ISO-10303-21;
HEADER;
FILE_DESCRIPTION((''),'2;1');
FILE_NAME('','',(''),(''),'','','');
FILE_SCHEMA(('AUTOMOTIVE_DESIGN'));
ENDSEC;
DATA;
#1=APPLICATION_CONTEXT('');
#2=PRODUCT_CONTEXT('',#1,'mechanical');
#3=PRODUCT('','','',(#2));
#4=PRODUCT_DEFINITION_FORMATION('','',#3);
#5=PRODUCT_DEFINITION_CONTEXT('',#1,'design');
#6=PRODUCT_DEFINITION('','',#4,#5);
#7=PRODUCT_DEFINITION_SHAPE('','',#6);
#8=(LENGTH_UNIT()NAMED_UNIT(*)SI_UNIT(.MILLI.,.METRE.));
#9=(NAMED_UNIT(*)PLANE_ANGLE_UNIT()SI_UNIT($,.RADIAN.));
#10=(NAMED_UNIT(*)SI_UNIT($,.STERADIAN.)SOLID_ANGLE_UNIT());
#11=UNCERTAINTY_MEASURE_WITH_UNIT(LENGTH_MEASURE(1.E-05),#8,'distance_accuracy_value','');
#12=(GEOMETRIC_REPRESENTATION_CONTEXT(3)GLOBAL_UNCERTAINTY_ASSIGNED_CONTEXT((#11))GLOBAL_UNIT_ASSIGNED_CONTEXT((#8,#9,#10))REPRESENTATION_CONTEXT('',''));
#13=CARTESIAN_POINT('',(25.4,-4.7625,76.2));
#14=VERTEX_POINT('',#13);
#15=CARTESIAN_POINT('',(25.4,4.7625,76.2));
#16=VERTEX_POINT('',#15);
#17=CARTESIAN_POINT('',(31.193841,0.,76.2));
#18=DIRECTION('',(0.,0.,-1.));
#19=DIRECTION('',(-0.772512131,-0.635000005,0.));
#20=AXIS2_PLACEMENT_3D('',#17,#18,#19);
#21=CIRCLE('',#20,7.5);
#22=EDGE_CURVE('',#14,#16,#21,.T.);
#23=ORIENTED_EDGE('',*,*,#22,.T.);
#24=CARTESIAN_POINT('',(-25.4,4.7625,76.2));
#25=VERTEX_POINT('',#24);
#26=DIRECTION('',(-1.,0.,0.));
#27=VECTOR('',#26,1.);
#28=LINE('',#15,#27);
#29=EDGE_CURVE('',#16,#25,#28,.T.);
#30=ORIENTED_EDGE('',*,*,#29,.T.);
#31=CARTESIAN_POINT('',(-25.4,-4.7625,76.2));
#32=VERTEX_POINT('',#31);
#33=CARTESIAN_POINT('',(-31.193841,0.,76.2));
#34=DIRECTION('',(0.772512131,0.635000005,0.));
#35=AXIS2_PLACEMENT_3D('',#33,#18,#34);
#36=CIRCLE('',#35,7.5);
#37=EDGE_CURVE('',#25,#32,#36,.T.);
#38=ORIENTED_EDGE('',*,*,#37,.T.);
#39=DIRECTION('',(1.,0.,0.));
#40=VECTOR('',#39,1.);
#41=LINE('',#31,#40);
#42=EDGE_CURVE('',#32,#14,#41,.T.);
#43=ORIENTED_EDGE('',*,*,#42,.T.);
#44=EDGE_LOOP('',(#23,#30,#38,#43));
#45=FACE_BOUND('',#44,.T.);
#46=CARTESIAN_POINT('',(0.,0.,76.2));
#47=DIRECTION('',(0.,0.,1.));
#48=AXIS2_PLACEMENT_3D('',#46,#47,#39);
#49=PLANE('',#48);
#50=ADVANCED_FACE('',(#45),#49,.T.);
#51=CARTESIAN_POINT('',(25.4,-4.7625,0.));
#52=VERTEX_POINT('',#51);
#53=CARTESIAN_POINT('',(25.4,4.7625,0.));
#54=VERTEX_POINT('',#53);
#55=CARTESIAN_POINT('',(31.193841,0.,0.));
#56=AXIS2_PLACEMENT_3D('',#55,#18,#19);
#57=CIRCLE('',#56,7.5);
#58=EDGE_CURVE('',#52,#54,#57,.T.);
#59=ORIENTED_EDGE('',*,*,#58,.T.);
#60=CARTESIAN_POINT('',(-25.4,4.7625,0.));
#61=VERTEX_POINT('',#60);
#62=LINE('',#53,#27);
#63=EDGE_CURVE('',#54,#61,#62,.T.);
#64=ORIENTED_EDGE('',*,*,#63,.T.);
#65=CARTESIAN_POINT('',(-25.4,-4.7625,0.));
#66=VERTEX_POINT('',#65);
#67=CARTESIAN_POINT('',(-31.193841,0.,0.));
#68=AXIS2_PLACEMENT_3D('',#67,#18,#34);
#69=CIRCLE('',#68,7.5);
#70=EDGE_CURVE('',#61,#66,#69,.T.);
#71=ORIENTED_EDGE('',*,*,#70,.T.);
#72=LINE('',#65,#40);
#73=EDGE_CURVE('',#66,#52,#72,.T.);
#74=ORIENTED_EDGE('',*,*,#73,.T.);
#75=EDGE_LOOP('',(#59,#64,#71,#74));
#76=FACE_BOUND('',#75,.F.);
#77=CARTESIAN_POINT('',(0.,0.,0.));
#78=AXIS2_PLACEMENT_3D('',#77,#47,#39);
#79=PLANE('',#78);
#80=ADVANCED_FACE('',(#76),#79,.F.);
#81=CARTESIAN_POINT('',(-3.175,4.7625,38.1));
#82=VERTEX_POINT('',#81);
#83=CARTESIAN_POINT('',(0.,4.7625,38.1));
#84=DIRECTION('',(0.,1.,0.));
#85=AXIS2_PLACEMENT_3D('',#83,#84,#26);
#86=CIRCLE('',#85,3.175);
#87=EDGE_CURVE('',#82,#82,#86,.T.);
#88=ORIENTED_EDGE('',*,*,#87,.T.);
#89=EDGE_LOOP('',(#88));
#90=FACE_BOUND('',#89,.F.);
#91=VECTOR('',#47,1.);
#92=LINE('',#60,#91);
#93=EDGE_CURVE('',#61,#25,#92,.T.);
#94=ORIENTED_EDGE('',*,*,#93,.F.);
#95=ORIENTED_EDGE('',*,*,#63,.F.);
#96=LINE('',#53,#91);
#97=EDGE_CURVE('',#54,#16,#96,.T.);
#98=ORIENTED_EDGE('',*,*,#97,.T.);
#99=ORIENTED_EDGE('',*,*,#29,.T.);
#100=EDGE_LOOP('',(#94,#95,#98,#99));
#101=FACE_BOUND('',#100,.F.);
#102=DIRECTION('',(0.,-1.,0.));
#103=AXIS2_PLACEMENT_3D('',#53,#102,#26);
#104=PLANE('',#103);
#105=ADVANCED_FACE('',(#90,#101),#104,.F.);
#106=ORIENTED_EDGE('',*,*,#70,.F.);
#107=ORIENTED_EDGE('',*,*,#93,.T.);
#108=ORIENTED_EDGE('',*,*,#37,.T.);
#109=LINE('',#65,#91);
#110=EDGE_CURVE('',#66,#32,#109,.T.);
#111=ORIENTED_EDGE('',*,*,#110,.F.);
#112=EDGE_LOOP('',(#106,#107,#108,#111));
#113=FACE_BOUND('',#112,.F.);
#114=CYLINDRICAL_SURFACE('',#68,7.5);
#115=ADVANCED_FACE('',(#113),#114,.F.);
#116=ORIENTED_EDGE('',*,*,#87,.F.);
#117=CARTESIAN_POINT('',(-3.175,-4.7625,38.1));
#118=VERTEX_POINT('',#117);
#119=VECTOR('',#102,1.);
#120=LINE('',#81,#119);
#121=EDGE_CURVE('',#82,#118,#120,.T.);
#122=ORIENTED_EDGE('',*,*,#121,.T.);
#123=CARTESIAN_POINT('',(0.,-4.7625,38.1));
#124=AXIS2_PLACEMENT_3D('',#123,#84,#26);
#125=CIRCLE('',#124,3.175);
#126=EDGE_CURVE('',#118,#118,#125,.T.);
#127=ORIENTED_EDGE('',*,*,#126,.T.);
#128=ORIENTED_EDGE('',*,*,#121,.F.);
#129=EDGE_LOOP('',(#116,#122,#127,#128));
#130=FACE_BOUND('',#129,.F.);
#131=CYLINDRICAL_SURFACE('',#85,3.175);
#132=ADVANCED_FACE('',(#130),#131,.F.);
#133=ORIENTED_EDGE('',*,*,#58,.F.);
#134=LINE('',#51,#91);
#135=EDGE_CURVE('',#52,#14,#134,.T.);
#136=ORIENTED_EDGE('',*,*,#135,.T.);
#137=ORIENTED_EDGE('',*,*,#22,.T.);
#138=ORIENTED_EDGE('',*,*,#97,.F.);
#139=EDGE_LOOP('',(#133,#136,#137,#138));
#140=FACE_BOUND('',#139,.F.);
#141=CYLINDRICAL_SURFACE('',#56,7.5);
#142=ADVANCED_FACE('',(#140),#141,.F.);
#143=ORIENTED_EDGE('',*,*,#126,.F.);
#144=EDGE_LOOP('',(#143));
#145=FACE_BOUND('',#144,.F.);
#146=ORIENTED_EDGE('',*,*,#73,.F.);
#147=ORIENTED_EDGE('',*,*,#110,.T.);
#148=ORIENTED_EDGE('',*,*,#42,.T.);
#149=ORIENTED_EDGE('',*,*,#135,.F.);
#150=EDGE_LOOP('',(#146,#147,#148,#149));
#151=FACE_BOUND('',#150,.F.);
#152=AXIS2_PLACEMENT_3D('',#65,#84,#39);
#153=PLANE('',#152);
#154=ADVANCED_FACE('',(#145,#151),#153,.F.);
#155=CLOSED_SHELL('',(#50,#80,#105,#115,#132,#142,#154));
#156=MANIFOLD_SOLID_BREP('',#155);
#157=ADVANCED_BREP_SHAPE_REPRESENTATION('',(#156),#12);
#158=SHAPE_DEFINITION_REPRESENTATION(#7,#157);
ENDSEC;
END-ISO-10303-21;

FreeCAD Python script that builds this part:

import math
import FreeCAD as App
import Part
import Sketcher
Q = App.Units.Quantity

doc = App.newDocument("Part")
params = doc.addObject("Spreadsheet::Sheet", "Params")
for row, (alias, value) in enumerate([
    ("sketch1_width", "2 in"),
    ("pad1_length", "3 in"),
    ("sketch2_diameter", "0.25 in"),
], start=1):
    params.set(f"A{row}", alias)
    params.set(f"B{row}", "=" + value)
    params.setAlias(f"B{row}", alias)

body = doc.addObject("PartDesign::Body", "Body")

sketch1 = doc.addObject("Sketcher::SketchObject", "Sketch")
body.addObject(sketch1)
sketch1.AttachmentSupport = (doc.XY_Plane, [""])
sketch1.MapMode = "FlatFace"
sketch1.addGeometry([
    Part.LineSegment(App.Vector(-25, -5, 0), App.Vector(25, -5, 0)),
    Part.ArcOfCircle(Part.Circle(App.Vector(31, 0, 0), App.Vector(0, 0, 1), 7), math.radians(141), math.radians(219)),
    Part.LineSegment(App.Vector(25, 5, 0), App.Vector(-25, 5, 0)),
    Part.ArcOfCircle(Part.Circle(App.Vector(-31, 0, 0), App.Vector(0, 0, 1), 7), math.radians(-39), math.radians(39)),
], False)
sketch1.addConstraint([
    Sketcher.Constraint("Coincident", 0, 2, 1, 2),
    Sketcher.Constraint("Coincident", 1, 1, 2, 1),
    Sketcher.Constraint("Coincident", 2, 2, 3, 2),
    Sketcher.Constraint("Coincident", 3, 1, 0, 1),
    Sketcher.Constraint("Horizontal", 0),
    Sketcher.Constraint("Horizontal", 2),
    Sketcher.Constraint("Equal", 1, 3),
    Sketcher.Constraint("Symmetric", 1, 3, 3, 3, -1, 1),
    Sketcher.Constraint("Symmetric", 0, 2, 1, 1, -1),
    Sketcher.Constraint("DistanceX", 0, 1, 0, 2, Q("2 in")),
    Sketcher.Constraint("Radius", 1, Q("7.5 mm")),
    Sketcher.Constraint("DistanceY", 0, 2, -1, 1, Q("0.1875 in")),
])
sketch1.setExpression("Constraints[9]", "Params.sketch1_width")
pad1 = doc.addObject("PartDesign::Pad", "Pad")
body.addObject(pad1)
pad1.Profile = sketch1
pad1.setExpression("Length", "Params.pad1_length")

sketch2 = doc.addObject("Sketcher::SketchObject", "Sketch001")
body.addObject(sketch2)
sketch2.AttachmentSupport = (doc.XZ_Plane, [""])
sketch2.MapMode = "FlatFace"
sketch2.AttachmentOffset = App.Placement(App.Vector(0, 0, -0.1875 * 25.4), App.Rotation())
sketch2.addGeometry(Part.Circle(App.Vector(0, 38.1, 0), App.Vector(0, 0, 1), 3.2), False)
sketch2.addConstraint([
    Sketcher.Constraint("PointOnObject", 0, 3, -2),
    Sketcher.Constraint("Diameter", 0, Q("0.25 in")),
    Sketcher.Constraint("DistanceY", -1, 1, 0, 3, Q("1.5 in")),
])
sketch2.setExpression("Constraints[1]", "Params.sketch2_diameter")
pocket1 = doc.addObject("PartDesign::Pocket", "Pocket")
body.addObject(pocket1)
pocket1.Profile = sketch2
pocket1.Type = "ThroughAll"
pocket1.Reversed = True

doc.recompute()
